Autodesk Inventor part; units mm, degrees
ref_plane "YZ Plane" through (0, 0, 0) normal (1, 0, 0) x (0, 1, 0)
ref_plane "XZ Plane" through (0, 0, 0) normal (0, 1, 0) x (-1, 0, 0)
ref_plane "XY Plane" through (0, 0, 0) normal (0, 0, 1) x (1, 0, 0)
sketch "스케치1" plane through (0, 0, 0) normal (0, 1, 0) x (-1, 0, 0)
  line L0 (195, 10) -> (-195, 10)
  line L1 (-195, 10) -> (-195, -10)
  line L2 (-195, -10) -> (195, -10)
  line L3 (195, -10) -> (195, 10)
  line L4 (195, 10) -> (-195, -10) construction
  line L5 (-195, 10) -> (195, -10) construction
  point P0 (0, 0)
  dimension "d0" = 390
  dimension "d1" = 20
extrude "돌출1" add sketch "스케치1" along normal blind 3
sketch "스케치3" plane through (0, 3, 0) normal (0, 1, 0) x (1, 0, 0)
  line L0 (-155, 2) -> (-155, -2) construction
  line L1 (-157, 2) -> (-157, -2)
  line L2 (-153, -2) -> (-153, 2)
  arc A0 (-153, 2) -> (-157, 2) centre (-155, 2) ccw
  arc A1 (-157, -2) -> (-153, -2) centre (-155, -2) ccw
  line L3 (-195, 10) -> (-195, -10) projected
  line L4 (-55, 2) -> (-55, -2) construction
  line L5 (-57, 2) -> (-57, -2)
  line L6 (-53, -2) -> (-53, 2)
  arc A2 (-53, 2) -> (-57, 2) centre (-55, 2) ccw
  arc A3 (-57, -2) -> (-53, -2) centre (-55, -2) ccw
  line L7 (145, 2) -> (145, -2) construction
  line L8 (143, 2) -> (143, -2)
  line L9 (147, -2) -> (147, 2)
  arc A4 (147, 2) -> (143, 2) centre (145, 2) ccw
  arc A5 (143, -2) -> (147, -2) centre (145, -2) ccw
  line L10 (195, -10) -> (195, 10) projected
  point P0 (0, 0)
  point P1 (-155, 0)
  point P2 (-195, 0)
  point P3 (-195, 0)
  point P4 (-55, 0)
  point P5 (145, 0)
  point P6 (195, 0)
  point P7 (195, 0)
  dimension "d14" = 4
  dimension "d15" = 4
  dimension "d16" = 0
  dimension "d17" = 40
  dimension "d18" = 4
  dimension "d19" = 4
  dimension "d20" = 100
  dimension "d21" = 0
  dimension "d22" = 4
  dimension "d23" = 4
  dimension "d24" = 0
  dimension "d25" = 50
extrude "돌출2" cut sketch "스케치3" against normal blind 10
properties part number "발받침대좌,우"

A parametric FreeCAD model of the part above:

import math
import FreeCAD as App
import Part
import Sketcher


def add_polygon(sketch, points):
    """Adds a closed chain of lines whose ends are joined by coincident constraints."""
    first, n = sketch.GeometryCount, len(points)
    for a, b in zip(points, points[1:] + points[:1]):
        sketch.addGeometry(Part.LineSegment(App.Vector(*a, 0), App.Vector(*b, 0)), False)
    for i in range(n):
        sketch.addConstraint(Sketcher.Constraint("Coincident", first + i, 2, first + (i + 1) % n, 1))

doc = App.newDocument("Part")
params = doc.addObject("Spreadsheet::Sheet", "Params")
for row, (alias, value) in enumerate([
    ("sketch1_width", "390 mm"),
    ("sketch1_height", "20 mm"),
    ("pad1_length", "3 mm"),
    ("sketch2_radius", "2 mm"),
    ("sketch2_height", "4 mm"),
    ("pocket1_length", "10 mm"),
], start=1):
    params.set(f"A{row}", alias)
    params.set(f"B{row}", "=" + value)
    params.setAlias(f"B{row}", alias)

body = doc.addObject("PartDesign::Body", "Body")

# Sketch on XZ plane
sketch1 = body.newObject("Sketcher::SketchObject", "Sketch")
sketch1.AttachmentSupport = (doc.getObject("XZ_Plane"), [""])
sketch1.MapMode = "FlatFace"
add_polygon(sketch1, [(-195, -10), (-195, 10), (195, 10), (195, -10)])  # lines 0-3
sketch1.addConstraint([
    Sketcher.Constraint("Vertical", 0),
    Sketcher.Constraint("Horizontal", 1),
    Sketcher.Constraint("Vertical", 2),
    Sketcher.Constraint("Horizontal", 3),
    Sketcher.Constraint("Symmetric", 0, 2, 2, 2, -1, 1),
    Sketcher.Constraint("DistanceX", 1, 1, 1, 2, 390.0),
    Sketcher.Constraint("DistanceY", 0, 1, 0, 2, 20.0),
])
sketch1.setExpression("Constraints[9]", "Params.sketch1_width")
sketch1.setExpression("Constraints[10]", "Params.sketch1_height")
pad1 = body.newObject("PartDesign::Pad", "Pad")
pad1.Profile = sketch1
pad1.setExpression("Length", "Params.pad1_length")
pad1.Reversed = True

# Sketch on XZ plane
sketch2 = body.newObject("Sketcher::SketchObject", "Sketch001")
sketch2.AttachmentSupport = (doc.getObject("XZ_Plane"), [""])
sketch2.MapMode = "FlatFace"
sketch2.AttachmentOffset = App.Placement(App.Vector(0, 0, -3), App.Rotation())
sketch2.addGeometry([
    Part.ArcOfCircle(Part.Circle(App.Vector(-155, -2, 0), App.Vector(0, 0, 1), 2), math.radians(180), math.radians(360)),  # 0
    Part.LineSegment(App.Vector(-157, -2, 0), App.Vector(-157, 2, 0)),  # 1
    Part.ArcOfCircle(Part.Circle(App.Vector(-155, 2, 0), App.Vector(0, 0, 1), 2), math.radians(0), math.radians(180)),  # 2
    Part.LineSegment(App.Vector(-153, 2, 0), App.Vector(-153, -2, 0)),  # 3
    Part.ArcOfCircle(Part.Circle(App.Vector(-55, -2, 0), App.Vector(0, 0, 1), 2), math.radians(180), math.radians(360)),  # 4
    Part.LineSegment(App.Vector(-57, -2, 0), App.Vector(-57, 2, 0)),  # 5
    Part.ArcOfCircle(Part.Circle(App.Vector(-55, 2, 0), App.Vector(0, 0, 1), 2), math.radians(0), math.radians(180)),  # 6
    Part.LineSegment(App.Vector(-53, 2, 0), App.Vector(-53, -2, 0)),  # 7
    Part.ArcOfCircle(Part.Circle(App.Vector(145, -2, 0), App.Vector(0, 0, 1), 2), math.radians(180), math.radians(360)),  # 8
    Part.LineSegment(App.Vector(143, -2, 0), App.Vector(143, 2, 0)),  # 9
    Part.ArcOfCircle(Part.Circle(App.Vector(145, 2, 0), App.Vector(0, 0, 1), 2), math.radians(0), math.radians(180)),  # 10
    Part.LineSegment(App.Vector(147, 2, 0), App.Vector(147, -2, 0)),  # 11
], False)
sketch2.addConstraint([
    Sketcher.Constraint("Tangent", 0, 1, 1, 1),
    Sketcher.Constraint("Tangent", 1, 2, 2, 2),
    Sketcher.Constraint("Tangent", 2, 1, 3, 1),
    Sketcher.Constraint("Tangent", 3, 2, 0, 2),
    Sketcher.Constraint("Tangent", 4, 1, 5, 1),
    Sketcher.Constraint("Tangent", 5, 2, 6, 2),
    Sketcher.Constraint("Tangent", 6, 1, 7, 1),
    Sketcher.Constraint("Tangent", 7, 2, 4, 2),
    Sketcher.Constraint("Tangent", 8, 1, 9, 1),
    Sketcher.Constraint("Tangent", 9, 2, 10, 2),
    Sketcher.Constraint("Tangent", 10, 1, 11, 1),
    Sketcher.Constraint("Tangent", 11, 2, 8, 2),
    Sketcher.Constraint("Vertical", 1),
    Sketcher.Constraint("Vertical", 3),
    Sketcher.Constraint("Vertical", 5),
    Sketcher.Constraint("Vertical", 7),
    Sketcher.Constraint("Vertical", 9),
    Sketcher.Constraint("Vertical", 11),
    Sketcher.Constraint("Equal", 2, 4),
    Sketcher.Constraint("Equal", 6, 8),
    Sketcher.Constraint("Horizontal", 0, 3, 4, 3),
    Sketcher.Constraint("Horizontal", 2, 3, 6, 3),
    Sketcher.Constraint("Horizontal", 4, 3, 8, 3),
    Sketcher.Constraint("Horizontal", 6, 3, 10, 3),
    Sketcher.Constraint("Radius", 0, 2.0),
    Sketcher.Constraint("DistanceY", 1, 1, 1, 2, 4.0),
    Sketcher.Constraint("DistanceX", 0, 3, 4, 3, 100.0),
    Sketcher.Constraint("DistanceX", 0, 3, -1, 1, 155.0),
    Sketcher.Constraint("DistanceY", 0, 3, -1, 1, 2.0),
    Sketcher.Constraint("DistanceX", -1, 1, 8, 3, 145.0),
])
sketch2.setExpression("Constraints[24]", "Params.sketch2_radius")
sketch2.setExpression("Constraints[25]", "Params.sketch2_height")
pocket1 = body.newObject("PartDesign::Pocket", "Pocket")
pocket1.Profile = sketch2
pocket1.setExpression("Length", "Params.pocket1_length")
pocket1.Reversed = True

doc.recompute()
